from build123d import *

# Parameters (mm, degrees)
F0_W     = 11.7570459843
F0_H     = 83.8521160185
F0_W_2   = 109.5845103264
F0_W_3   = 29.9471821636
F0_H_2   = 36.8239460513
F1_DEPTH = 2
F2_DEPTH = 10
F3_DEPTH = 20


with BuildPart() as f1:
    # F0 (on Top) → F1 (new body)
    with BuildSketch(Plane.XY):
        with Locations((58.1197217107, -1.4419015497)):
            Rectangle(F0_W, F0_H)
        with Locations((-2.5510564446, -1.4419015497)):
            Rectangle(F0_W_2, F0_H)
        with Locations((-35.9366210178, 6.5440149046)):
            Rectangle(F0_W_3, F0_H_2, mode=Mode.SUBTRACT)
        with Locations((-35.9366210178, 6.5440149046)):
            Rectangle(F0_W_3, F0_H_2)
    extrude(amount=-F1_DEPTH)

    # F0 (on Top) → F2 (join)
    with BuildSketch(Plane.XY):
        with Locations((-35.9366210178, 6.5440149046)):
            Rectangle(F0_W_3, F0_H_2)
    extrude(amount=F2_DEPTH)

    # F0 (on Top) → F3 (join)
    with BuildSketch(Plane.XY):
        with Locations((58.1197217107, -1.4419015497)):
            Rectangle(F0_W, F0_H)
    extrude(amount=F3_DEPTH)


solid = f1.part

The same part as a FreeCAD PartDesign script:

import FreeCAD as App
import Part
import Sketcher
from FreeCAD import Vector
Q = App.Units.Quantity

doc = App.newDocument("Part")
body = doc.addObject("PartDesign::Body", "Body")

# Sketch on XY plane
sketch1 = body.newObject("Sketcher::SketchObject", "Sketch")
sketch1.AttachmentSupport = (doc.getObject("XY_Plane"), [""])
sketch1.MapMode = "FlatFace"
sketch1.addGeometry([
    Part.LineSegment(Vector(63.998245, -43.36796, 0), Vector(63.998245, 40.484156, 0)),
    Part.LineSegment(Vector(63.998245, 40.484156, 0), Vector(-57.343312, 40.484156, 0)),
    Part.LineSegment(Vector(-57.343312, 40.484156, 0), Vector(-57.343312, -43.36796, 0)),
    Part.LineSegment(Vector(-57.343312, -43.36796, 0), Vector(63.998245, -43.36796, 0)),
], False)
sketch1.addConstraint([
    Sketcher.Constraint("Coincident", 0, 2, 1, 1),
    Sketcher.Constraint("Coincident", 1, 2, 2, 1),
    Sketcher.Constraint("Coincident", 2, 2, 3, 1),
    Sketcher.Constraint("Coincident", 3, 2, 0, 1),
    Sketcher.Constraint("Vertical", 0),
    Sketcher.Constraint("Horizontal", 1),
    Sketcher.Constraint("Vertical", 2),
    Sketcher.Constraint("Horizontal", 3),
    Sketcher.Constraint("DistanceX", 1, 2, 1, 1, Q("121.341556 mm")),
    Sketcher.Constraint("DistanceY", 0, 1, 0, 2, Q("83.852116 mm")),
    Sketcher.Constraint("DistanceX", 1, 2, -1, 1, Q("57.343312 mm")),
    Sketcher.Constraint("DistanceY", 2, 2, -1, 1, Q("43.36796 mm")),
])
pad1 = body.newObject("PartDesign::Pad", "Pad")
pad1.Profile = sketch1
pad1.Length = 2
pad1.Reversed = True

# Sketch on XY plane
sketch2 = body.newObject("Sketcher::SketchObject", "Sketch001")
sketch2.AttachmentSupport = (doc.getObject("XY_Plane"), [""])
sketch2.MapMode = "FlatFace"
sketch2.addGeometry([
    Part.LineSegment(Vector(-50.910212, 24.955988, 0), Vector(-50.910212, -11.867958, 0)),
    Part.LineSegment(Vector(-50.910212, -11.867958, 0), Vector(-20.96303, -11.867958, 0)),
    Part.LineSegment(Vector(-20.96303, -11.867958, 0), Vector(-20.96303, 24.955988, 0)),
    Part.LineSegment(Vector(-20.96303, 24.955988, 0), Vector(-50.910212, 24.955988, 0)),
], False)
sketch2.addConstraint([
    Sketcher.Constraint("Coincident", 0, 2, 1, 1),
    Sketcher.Constraint("Coincident", 1, 2, 2, 1),
    Sketcher.Constraint("Coincident", 2, 2, 3, 1),
    Sketcher.Constraint("Coincident", 3, 2, 0, 1),
    Sketcher.Constraint("Vertical", 0),
    Sketcher.Constraint("Horizontal", 1),
    Sketcher.Constraint("Vertical", 2),
    Sketcher.Constraint("Horizontal", 3),
    Sketcher.Constraint("DistanceX", 1, 1, 1, 2, Q("29.947182 mm")),
    Sketcher.Constraint("DistanceY", 0, 2, 0, 1, Q("36.823946 mm")),
    Sketcher.Constraint("DistanceY", 0, 2, -1, 1, Q("11.867958 mm")),
    Sketcher.Constraint("DistanceX", 1, 2, -1, 1, Q("20.96303 mm")),
])
pad2 = body.newObject("PartDesign::Pad", "Pad001")
pad2.Profile = sketch2
pad2.Length = 10

# Sketch on XY plane
sketch3 = body.newObject("Sketcher::SketchObject", "Sketch002")
sketch3.AttachmentSupport = (doc.getObject("XY_Plane"), [""])
sketch3.MapMode = "FlatFace"
sketch3.addGeometry([
    Part.LineSegment(Vector(52.241199, 40.484156, 0), Vector(52.241199, -43.36796, 0)),
    Part.LineSegment(Vector(52.241199, -43.36796, 0), Vector(63.998245, -43.36796, 0)),
    Part.LineSegment(Vector(63.998245, -43.36796, 0), Vector(63.998245, 40.484156, 0)),
    Part.LineSegment(Vector(63.998245, 40.484156, 0), Vector(52.241199, 40.484156, 0)),
], False)
sketch3.addConstraint([
    Sketcher.Constraint("Coincident", 0, 2, 1, 1),
    Sketcher.Constraint("Coincident", 1, 2, 2, 1),
    Sketcher.Constraint("Coincident", 2, 2, 3, 1),
    Sketcher.Constraint("Coincident", 3, 2, 0, 1),
    Sketcher.Constraint("Vertical", 0),
    Sketcher.Constraint("Horizontal", 1),
    Sketcher.Constraint("Vertical", 2),
    Sketcher.Constraint("Horizontal", 3),
    Sketcher.Constraint("DistanceX", -1, 1, 0, 2, Q("52.241199 mm")),
    Sketcher.Constraint("DistanceX", 1, 1, 1, 2, Q("11.757046 mm")),
    Sketcher.Constraint("DistanceY", 0, 2, 0, 1, Q("83.852116 mm")),
    Sketcher.Constraint("DistanceY", 0, 2, -1, 1, Q("43.36796 mm")),
])
pad3 = body.newObject("PartDesign::Pad", "Pad002")
pad3.Profile = sketch3
pad3.Length = 20

doc.recompute()
